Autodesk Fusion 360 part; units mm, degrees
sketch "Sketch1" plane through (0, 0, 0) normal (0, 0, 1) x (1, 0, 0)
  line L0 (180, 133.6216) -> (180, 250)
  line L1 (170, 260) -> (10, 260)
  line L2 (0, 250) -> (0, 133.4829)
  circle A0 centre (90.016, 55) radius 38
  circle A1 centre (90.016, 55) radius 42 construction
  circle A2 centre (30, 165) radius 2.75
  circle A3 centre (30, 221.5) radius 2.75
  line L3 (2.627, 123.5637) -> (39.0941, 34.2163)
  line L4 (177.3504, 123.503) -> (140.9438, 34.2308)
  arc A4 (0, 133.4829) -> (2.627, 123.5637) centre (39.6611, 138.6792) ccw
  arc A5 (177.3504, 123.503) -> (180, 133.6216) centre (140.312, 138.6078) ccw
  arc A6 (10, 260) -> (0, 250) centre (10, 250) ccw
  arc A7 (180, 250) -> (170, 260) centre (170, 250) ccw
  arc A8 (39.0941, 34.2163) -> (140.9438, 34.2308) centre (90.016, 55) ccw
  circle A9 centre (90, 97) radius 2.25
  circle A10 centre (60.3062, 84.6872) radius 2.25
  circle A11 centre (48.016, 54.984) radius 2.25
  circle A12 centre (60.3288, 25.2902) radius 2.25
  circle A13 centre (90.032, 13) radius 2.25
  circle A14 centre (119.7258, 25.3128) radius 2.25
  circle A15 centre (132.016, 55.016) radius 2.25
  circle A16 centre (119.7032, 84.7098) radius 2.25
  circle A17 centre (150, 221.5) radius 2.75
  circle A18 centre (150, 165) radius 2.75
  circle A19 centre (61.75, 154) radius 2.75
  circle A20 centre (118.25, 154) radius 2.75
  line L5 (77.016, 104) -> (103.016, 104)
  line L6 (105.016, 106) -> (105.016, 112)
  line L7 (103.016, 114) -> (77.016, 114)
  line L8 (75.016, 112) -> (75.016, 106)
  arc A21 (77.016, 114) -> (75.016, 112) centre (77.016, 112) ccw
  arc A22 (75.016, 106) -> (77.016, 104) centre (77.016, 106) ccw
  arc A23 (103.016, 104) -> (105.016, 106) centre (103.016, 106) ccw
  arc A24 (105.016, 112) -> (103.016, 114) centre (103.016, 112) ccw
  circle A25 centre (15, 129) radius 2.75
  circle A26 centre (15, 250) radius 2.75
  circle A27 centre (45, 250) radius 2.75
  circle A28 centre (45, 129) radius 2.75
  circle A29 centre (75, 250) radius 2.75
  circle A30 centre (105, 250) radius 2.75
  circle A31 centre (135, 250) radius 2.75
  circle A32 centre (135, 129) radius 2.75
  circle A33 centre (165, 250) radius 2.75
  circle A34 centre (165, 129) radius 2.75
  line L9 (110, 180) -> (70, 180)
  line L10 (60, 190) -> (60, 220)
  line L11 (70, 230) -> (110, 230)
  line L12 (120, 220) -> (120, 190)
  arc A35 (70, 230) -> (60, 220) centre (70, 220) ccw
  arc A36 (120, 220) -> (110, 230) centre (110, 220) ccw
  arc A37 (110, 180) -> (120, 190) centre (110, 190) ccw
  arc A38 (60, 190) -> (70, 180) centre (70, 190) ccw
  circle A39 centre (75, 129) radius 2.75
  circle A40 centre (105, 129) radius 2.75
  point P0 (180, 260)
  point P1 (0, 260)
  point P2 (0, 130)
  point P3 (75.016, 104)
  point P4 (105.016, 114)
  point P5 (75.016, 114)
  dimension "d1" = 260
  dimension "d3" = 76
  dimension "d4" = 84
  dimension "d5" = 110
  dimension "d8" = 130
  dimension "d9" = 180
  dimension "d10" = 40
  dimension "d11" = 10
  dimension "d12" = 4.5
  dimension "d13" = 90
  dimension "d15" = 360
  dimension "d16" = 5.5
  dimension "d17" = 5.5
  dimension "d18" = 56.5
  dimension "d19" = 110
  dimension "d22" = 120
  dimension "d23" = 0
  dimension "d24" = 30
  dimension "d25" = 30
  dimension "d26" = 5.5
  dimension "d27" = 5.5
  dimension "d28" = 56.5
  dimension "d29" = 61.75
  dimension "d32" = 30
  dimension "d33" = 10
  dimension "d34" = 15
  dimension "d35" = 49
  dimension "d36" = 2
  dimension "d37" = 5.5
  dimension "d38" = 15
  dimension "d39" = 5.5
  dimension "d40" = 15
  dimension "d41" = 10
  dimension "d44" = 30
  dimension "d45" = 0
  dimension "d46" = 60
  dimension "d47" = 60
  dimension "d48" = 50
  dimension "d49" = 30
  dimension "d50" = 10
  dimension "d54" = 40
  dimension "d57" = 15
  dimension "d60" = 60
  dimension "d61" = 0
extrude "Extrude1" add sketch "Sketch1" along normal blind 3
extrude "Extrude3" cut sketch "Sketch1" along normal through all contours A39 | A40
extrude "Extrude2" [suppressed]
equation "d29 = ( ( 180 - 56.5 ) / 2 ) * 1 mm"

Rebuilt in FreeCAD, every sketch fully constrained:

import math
import FreeCAD as App
import Part
import Sketcher
from FreeCAD import Vector
Q = App.Units.Quantity

doc = App.newDocument("Part")
body = doc.addObject("PartDesign::Body", "Body")

# Sketch on XY plane
sketch1 = doc.addObject("Sketcher::SketchObject", "Sketch")
body.addObject(sketch1)
sketch1.AttachmentSupport = (doc.XY_Plane, [""])
sketch1.MapMode = "FlatFace"
sketch1.addGeometry([
    Part.ArcOfCircle(Part.Circle(Vector(140.3, 138.6, 0), Vector(0, 0, 1), 40), math.radians(-22.19), math.radians(-7.16)),  # 0
    Part.LineSegment(Vector(180, 133.6, 0), Vector(180, 250, 0)),  # 1
    Part.ArcOfCircle(Part.Circle(Vector(170, 250, 0), Vector(0, 0, 1), 10), math.radians(0), math.radians(90)),  # 2
    Part.LineSegment(Vector(170, 260, 0), Vector(10, 260, 0)),  # 3
    Part.ArcOfCircle(Part.Circle(Vector(10, 250, 0), Vector(0, 0, 1), 10), math.radians(90), math.radians(180)),  # 4
    Part.LineSegment(Vector(0, 250, 0), Vector(0, 133.5, 0)),  # 5
    Part.ArcOfCircle(Part.Circle(Vector(39.7, 138.7, 0), Vector(0, 0, 1), 40), math.radians(-172.54), math.radians(-157.8)),  # 6
    Part.LineSegment(Vector(2.6, 123.6, 0), Vector(39.1, 34.2, 0)),  # 7
    Part.ArcOfCircle(Part.Circle(Vector(90, 55, 0), Vector(0, 0, 1), 55), math.radians(-158), math.radians(-22)),  # 8
    Part.LineSegment(Vector(140.9, 34.2, 0), Vector(177.4, 123.5, 0)),  # 9
    Part.Circle(Vector(60.3, 25.3, 0), Vector(0, 0, 1), 2.2),  # 10
    Part.Circle(Vector(48, 55, 0), Vector(0, 0, 1), 2.2),  # 11
    Part.Circle(Vector(15, 129, 0), Vector(0, 0, 1), 2.8),  # 12
    Part.Circle(Vector(60.3, 84.7, 0), Vector(0, 0, 1), 2.2),  # 13
    Part.Circle(Vector(45, 129, 0), Vector(0, 0, 1), 2.8),  # 14
    Part.Circle(Vector(75, 129, 0), Vector(0, 0, 1), 2.8),  # 15
    Part.Circle(Vector(90, 13, 0), Vector(0, 0, 1), 2.2),  # 16
    Part.Circle(Vector(119.7, 25.3, 0), Vector(0, 0, 1), 2.2),  # 17
    Part.Circle(Vector(90, 55, 0), Vector(0, 0, 1), 38),  # 18
    Part.Circle(Vector(132, 55, 0), Vector(0, 0, 1), 2.2),  # 19
    Part.Circle(Vector(90, 97, 0), Vector(0, 0, 1), 2.2),  # 20
    Part.Circle(Vector(119.7, 84.7, 0), Vector(0, 0, 1), 2.2),  # 21
    Part.LineSegment(Vector(103, 104, 0), Vector(77, 104, 0)),  # 22
    Part.ArcOfCircle(Part.Circle(Vector(77, 106, 0), Vector(0, 0, 1), 2), math.radians(180), math.radians(270)),  # 23
    Part.LineSegment(Vector(75, 106, 0), Vector(75, 112, 0)),  # 24
    Part.ArcOfCircle(Part.Circle(Vector(77, 112, 0), Vector(0, 0, 1), 2), math.radians(90), math.radians(180)),  # 25
    Part.LineSegment(Vector(77, 114, 0), Vector(103, 114, 0)),  # 26
    Part.ArcOfCircle(Part.Circle(Vector(103, 112, 0), Vector(0, 0, 1), 2), math.radians(0), math.radians(90)),  # 27
    Part.LineSegment(Vector(105, 112, 0), Vector(105, 106, 0)),  # 28
    Part.ArcOfCircle(Part.Circle(Vector(103, 106, 0), Vector(0, 0, 1), 2), math.radians(-90), math.radians(0)),  # 29
    Part.Circle(Vector(105, 129, 0), Vector(0, 0, 1), 2.8),  # 30
    Part.Circle(Vector(135, 129, 0), Vector(0, 0, 1), 2.8),  # 31
    Part.Circle(Vector(165, 129, 0), Vector(0, 0, 1), 2.8),  # 32
    Part.Circle(Vector(30, 165, 0), Vector(0, 0, 1), 2.8),  # 33
    Part.Circle(Vector(61.8, 154, 0), Vector(0, 0, 1), 2.8),  # 34
    Part.Circle(Vector(30, 221.5, 0), Vector(0, 0, 1), 2.8),  # 35
    Part.Circle(Vector(15, 250, 0), Vector(0, 0, 1), 2.8),  # 36
    Part.Circle(Vector(45, 250, 0), Vector(0, 0, 1), 2.8),  # 37
    Part.Circle(Vector(75, 250, 0), Vector(0, 0, 1), 2.8),  # 38
    Part.Circle(Vector(118.2, 154, 0), Vector(0, 0, 1), 2.8),  # 39
    Part.Circle(Vector(150, 165, 0), Vector(0, 0, 1), 2.8),  # 40
    Part.ArcOfCircle(Part.Circle(Vector(110, 190, 0), Vector(0, 0, 1), 10), math.radians(-90), math.radians(0)),  # 41
    Part.LineSegment(Vector(110, 180, 0), Vector(70, 180, 0)),  # 42
    Part.ArcOfCircle(Part.Circle(Vector(70, 190, 0), Vector(0, 0, 1), 10), math.radians(180), math.radians(270)),  # 43
    Part.LineSegment(Vector(60, 190, 0), Vector(60, 220, 0)),  # 44
    Part.ArcOfCircle(Part.Circle(Vector(70, 220, 0), Vector(0, 0, 1), 10), math.radians(90), math.radians(180)),  # 45
    Part.LineSegment(Vector(70, 230, 0), Vector(110, 230, 0)),  # 46
    Part.ArcOfCircle(Part.Circle(Vector(110, 220, 0), Vector(0, 0, 1), 10), math.radians(0), math.radians(90)),  # 47
    Part.LineSegment(Vector(120, 220, 0), Vector(120, 190, 0)),  # 48
    Part.Circle(Vector(105, 250, 0), Vector(0, 0, 1), 2.8),  # 49
    Part.Circle(Vector(150, 221.5, 0), Vector(0, 0, 1), 2.8),  # 50
    Part.Circle(Vector(135, 250, 0), Vector(0, 0, 1), 2.8),  # 51
    Part.Circle(Vector(165, 250, 0), Vector(0, 0, 1), 2.8),  # 52
], False)
sketch1.addConstraint([
    Sketcher.Constraint("Coincident", 0, 2, 1, 1),
    Sketcher.Constraint("Tangent", 1, 2, 2, 1),
    Sketcher.Constraint("Tangent", 2, 2, 3, 1),
    Sketcher.Constraint("Tangent", 3, 2, 4, 1),
    Sketcher.Constraint("Tangent", 4, 2, 5, 1),
    Sketcher.Constraint("Coincident", 5, 2, 6, 1),
    Sketcher.Constraint("Tangent", 6, 2, 7, 1),
    Sketcher.Constraint("Tangent", 7, 2, 8, 1),
    Sketcher.Constraint("Tangent", 8, 2, 9, 1),
    Sketcher.Constraint("Tangent", 9, 2, 0, 1),
    Sketcher.Constraint("Tangent", 22, 2, 23, 2),
    Sketcher.Constraint("Tangent", 23, 1, 24, 1),
    Sketcher.Constraint("Tangent", 24, 2, 25, 2),
    Sketcher.Constraint("Tangent", 25, 1, 26, 1),
    Sketcher.Constraint("Tangent", 26, 2, 27, 2),
    Sketcher.Constraint("Tangent", 27, 1, 28, 1),
    Sketcher.Constraint("Tangent", 28, 2, 29, 2),
    Sketcher.Constraint("Tangent", 29, 1, 22, 1),
    Sketcher.Constraint("Tangent", 41, 1, 42, 1),
    Sketcher.Constraint("Tangent", 42, 2, 43, 2),
    Sketcher.Constraint("Tangent", 43, 1, 44, 1),
    Sketcher.Constraint("Tangent", 44, 2, 45, 2),
    Sketcher.Constraint("Tangent", 45, 1, 46, 1),
    Sketcher.Constraint("Tangent", 46, 2, 47, 2),
    Sketcher.Constraint("Tangent", 47, 1, 48, 1),
    Sketcher.Constraint("Tangent", 48, 2, 41, 2),
    Sketcher.Constraint("Vertical", 1),
    Sketcher.Constraint("Horizontal", 3),
    Sketcher.Constraint("Vertical", 5),
    Sketcher.Constraint("Horizontal", 22),
    Sketcher.Constraint("Vertical", 24),
    Sketcher.Constraint("Horizontal", 26),
    Sketcher.Constraint("Vertical", 28),
    Sketcher.Constraint("Horizontal", 42),
    Sketcher.Constraint("Vertical", 44),
    Sketcher.Constraint("Horizontal", 46),
    Sketcher.Constraint("Vertical", 48),
    Sketcher.Constraint("Coincident", 18, 3, 8, 3),
    Sketcher.Constraint("Equal", 2, 4),
    Sketcher.Constraint("Equal", 10, 11),
    Sketcher.Constraint("Equal", 11, 13),
    Sketcher.Constraint("Equal", 12, 14),
    Sketcher.Constraint("Equal", 14, 15),
    Sketcher.Constraint("Equal", 13, 16),
    Sketcher.Constraint("Equal", 16, 17),
    Sketcher.Constraint("Equal", 17, 19),
    Sketcher.Constraint("Equal", 19, 20),
    Sketcher.Constraint("Equal", 20, 21),
    Sketcher.Constraint("Equal", 23, 25),
    Sketcher.Constraint("Equal", 25, 27),
    Sketcher.Constraint("Equal", 27, 29),
    Sketcher.Constraint("Equal", 15, 30),
    Sketcher.Constraint("Equal", 30, 31),
    Sketcher.Constraint("Equal", 31, 32),
    Sketcher.Constraint("Equal", 32, 33),
    Sketcher.Constraint("Equal", 33, 34),
    Sketcher.Constraint("Equal", 34, 35),
    Sketcher.Constraint("Equal", 35, 36),
    Sketcher.Constraint("Equal", 36, 37),
    Sketcher.Constraint("Equal", 37, 38),
    Sketcher.Constraint("Equal", 38, 39),
    Sketcher.Constraint("Equal", 39, 40),
    Sketcher.Constraint("Equal", 4, 41),
    Sketcher.Constraint("Equal", 41, 43),
    Sketcher.Constraint("Equal", 43, 45),
    Sketcher.Constraint("Equal", 45, 47),
    Sketcher.Constraint("Equal", 40, 49),
    Sketcher.Constraint("Equal", 49, 50),
    Sketcher.Constraint("Equal", 50, 51),
    Sketcher.Constraint("Equal", 51, 52),
    Sketcher.Constraint("PointOnObject", 4, 2, -2),
    Sketcher.Constraint("Horizontal", 12, 3, 14, 3),
    Sketcher.Constraint("Horizontal", 14, 3, 15, 3),
    Sketcher.Constraint("Horizontal", 15, 3, 30, 3),
    Sketcher.Constraint("Horizontal", 30, 3, 31, 3),
    Sketcher.Constraint("Horizontal", 31, 3, 32, 3),
    Sketcher.Constraint("Horizontal", 4, 3, 36, 3),
    Sketcher.Constraint("Horizontal", 36, 3, 37, 3),
    Sketcher.Constraint("Horizontal", 37, 3, 38, 3),
    Sketcher.Constraint("Horizontal", 34, 3, 39, 3),
    Sketcher.Constraint("Horizontal", 33, 3, 40, 3),
    Sketcher.Constraint("Horizontal", 38, 3, 49, 3),
    Sketcher.Constraint("Horizontal", 35, 3, 50, 3),
    Sketcher.Constraint("Horizontal", 49, 3, 51, 3),
    Sketcher.Constraint("Horizontal", 51, 3, 52, 3),
    Sketcher.Constraint("Vertical", 33, 3, 35, 3),
    Sketcher.Constraint("Vertical", 12, 3, 36, 3),
    Sketcher.Constraint("Vertical", 14, 3, 37, 3),
    Sketcher.Constraint("Vertical", 15, 3, 38, 3),
    Sketcher.Constraint("Vertical", 30, 3, 49, 3),
    Sketcher.Constraint("Vertical", 40, 3, 50, 3),
    Sketcher.Constraint("Vertical", 31, 3, 51, 3),
    Sketcher.Constraint("Vertical", 32, 3, 52, 3),
    Sketcher.Constraint("Diameter", 18, Q("76 mm")),
    Sketcher.Constraint("Radius", 2, Q("10 mm")),
    Sketcher.Constraint("Radius", 8, Q("55 mm")),
    Sketcher.Constraint("Radius", 23, Q("2 mm")),
    Sketcher.Constraint("Diameter", 10, Q("4.5 mm")),
    Sketcher.Constraint("Diameter", 12, Q("5.5 mm")),
    Sketcher.Constraint("DistanceX", 42, 2, 42, 1, Q("40 mm")),
    Sketcher.Constraint("DistanceY", 44, 1, 44, 2, Q("30 mm")),
    Sketcher.Constraint("DistanceX", -1, 1, 12, 3, Q("15 mm")),
    Sketcher.Constraint("DistanceX", -1, 1, 20, 3, Q("90 mm")),
    Sketcher.Constraint("DistanceX", -1, 1, 33, 3, Q("30 mm")),
    Sketcher.Constraint("DistanceX", -1, 1, 41, 3, Q("110 mm")),
    Sketcher.Constraint("DistanceX", -1, 1, 0, 2, Q("180 mm")),
    Sketcher.Constraint("DistanceY", -1, 1, 2, 2, Q("260 mm")),
    Sketcher.Constraint("DistanceY", -1, 1, 41, 1, Q("180 mm")),
    Sketcher.Constraint("DistanceX", 22, 2, 22, 1, Q("26 mm")),
    Sketcher.Constraint("DistanceY", 24, 1, 24, 2, Q("6 mm")),
    Sketcher.Constraint("DistanceX", -1, 1, 34, 3, Q("61.75 mm")),
    Sketcher.Constraint("DistanceY", -1, 1, 8, 3, Q("55 mm")),
    Sketcher.Constraint("DistanceY", -1, 1, 12, 3, Q("129 mm")),
    Sketcher.Constraint("DistanceX", -1, 1, 14, 3, Q("45 mm")),
    Sketcher.Constraint("DistanceX", -1, 1, 15, 3, Q("75 mm")),
    Sketcher.Constraint("DistanceY", -1, 1, 16, 3, Q("13 mm")),
    Sketcher.Constraint("DistanceY", -1, 1, 20, 3, Q("97 mm")),
    Sketcher.Constraint("DistanceY", -1, 1, 23, 3, Q("106 mm")),
    Sketcher.Constraint("DistanceX", -1, 1, 30, 3, Q("105 mm")),
    Sketcher.Constraint("DistanceX", -1, 1, 31, 3, Q("135 mm")),
    Sketcher.Constraint("DistanceX", -1, 1, 32, 3, Q("165 mm")),
    Sketcher.Constraint("DistanceY", -1, 1, 33, 3, Q("165 mm")),
    Sketcher.Constraint("DistanceY", -1, 1, 34, 3, Q("154 mm")),
    Sketcher.Constraint("DistanceX", -1, 1, 40, 3, Q("150 mm")),
    Sketcher.Constraint("Radius", 0, Q("40.001 mm")),
    Sketcher.Constraint("Radius", 6, Q("39.999 mm")),
    Sketcher.Constraint("DistanceY", -1, 1, 35, 3, Q("221.5 mm")),
    Sketcher.Constraint("DistanceY", 5, 2, 5, 1, Q("116.517 mm")),
    Sketcher.Constraint("DistanceX", -1, 1, 6, 3, Q("39.66 mm")),
    Sketcher.Constraint("DistanceX", -1, 1, 39, 3, Q("118.25 mm")),
    Sketcher.Constraint("Distance", 7, Q("96.503 mm")),
    Sketcher.Constraint("DistanceY", 1, 1, 1, 2, Q("116.3784 mm")),
    Sketcher.Constraint("DistanceX", -1, 1, 0, 3, Q("140.311 mm")),
    Sketcher.Constraint("DistanceX", -1, 1, 11, 3, Q("48.016 mm")),
    Sketcher.Constraint("DistanceY", -1, 1, 11, 3, Q("54.984 mm")),
    Sketcher.Constraint("DistanceX", -1, 1, 16, 3, Q("90.032 mm")),
    Sketcher.Constraint("DistanceX", -1, 1, 19, 3, Q("132.016 mm")),
    Sketcher.Constraint("DistanceY", -1, 1, 19, 3, Q("55.016 mm")),
    Sketcher.Constraint("DistanceX", -1, 1, 23, 3, Q("77.016 mm")),
    Sketcher.Constraint("DistanceX", -1, 1, 10, 3, Q("60.3288 mm")),
    Sketcher.Constraint("DistanceY", -1, 1, 10, 3, Q("25.2902 mm")),
    Sketcher.Constraint("DistanceX", -1, 1, 13, 3, Q("60.3062 mm")),
    Sketcher.Constraint("DistanceY", -1, 1, 13, 3, Q("84.6872 mm")),
    Sketcher.Constraint("DistanceX", -1, 1, 17, 3, Q("119.7258 mm")),
    Sketcher.Constraint("DistanceY", -1, 1, 17, 3, Q("25.3128 mm")),
    Sketcher.Constraint("DistanceX", -1, 1, 21, 3, Q("119.7032 mm")),
    Sketcher.Constraint("DistanceY", -1, 1, 21, 3, Q("84.7098 mm")),
])
pad1 = doc.addObject("PartDesign::Pad", "Pad")
body.addObject(pad1)
pad1.Profile = sketch1
pad1.Length = 3

# Sketch on XY plane
sketch2 = doc.addObject("Sketcher::SketchObject", "Sketch001")
body.addObject(sketch2)
sketch2.AttachmentSupport = (doc.XY_Plane, [""])
sketch2.MapMode = "FlatFace"
sketch2.addGeometry([
    Part.Circle(Vector(75, 129, 0), Vector(0, 0, 1), 2.8),
    Part.Circle(Vector(105, 129, 0), Vector(0, 0, 1), 2.8),
], False)
sketch2.addConstraint([
    Sketcher.Constraint("Equal", 0, 1),
    Sketcher.Constraint("Horizontal", 0, 3, 1, 3),
    Sketcher.Constraint("Diameter", 0, Q("5.5 mm")),
    Sketcher.Constraint("DistanceX", 0, 3, 1, 3, Q("30 mm")),
    Sketcher.Constraint("DistanceX", -1, 1, 0, 3, Q("75 mm")),
    Sketcher.Constraint("DistanceY", -1, 1, 0, 3, Q("129 mm")),
])
pocket1 = doc.addObject("PartDesign::Pocket", "Pocket")
body.addObject(pocket1)
pocket1.Profile = sketch2
pocket1.Type = "ThroughAll"
pocket1.Reversed = True

doc.recompute()
